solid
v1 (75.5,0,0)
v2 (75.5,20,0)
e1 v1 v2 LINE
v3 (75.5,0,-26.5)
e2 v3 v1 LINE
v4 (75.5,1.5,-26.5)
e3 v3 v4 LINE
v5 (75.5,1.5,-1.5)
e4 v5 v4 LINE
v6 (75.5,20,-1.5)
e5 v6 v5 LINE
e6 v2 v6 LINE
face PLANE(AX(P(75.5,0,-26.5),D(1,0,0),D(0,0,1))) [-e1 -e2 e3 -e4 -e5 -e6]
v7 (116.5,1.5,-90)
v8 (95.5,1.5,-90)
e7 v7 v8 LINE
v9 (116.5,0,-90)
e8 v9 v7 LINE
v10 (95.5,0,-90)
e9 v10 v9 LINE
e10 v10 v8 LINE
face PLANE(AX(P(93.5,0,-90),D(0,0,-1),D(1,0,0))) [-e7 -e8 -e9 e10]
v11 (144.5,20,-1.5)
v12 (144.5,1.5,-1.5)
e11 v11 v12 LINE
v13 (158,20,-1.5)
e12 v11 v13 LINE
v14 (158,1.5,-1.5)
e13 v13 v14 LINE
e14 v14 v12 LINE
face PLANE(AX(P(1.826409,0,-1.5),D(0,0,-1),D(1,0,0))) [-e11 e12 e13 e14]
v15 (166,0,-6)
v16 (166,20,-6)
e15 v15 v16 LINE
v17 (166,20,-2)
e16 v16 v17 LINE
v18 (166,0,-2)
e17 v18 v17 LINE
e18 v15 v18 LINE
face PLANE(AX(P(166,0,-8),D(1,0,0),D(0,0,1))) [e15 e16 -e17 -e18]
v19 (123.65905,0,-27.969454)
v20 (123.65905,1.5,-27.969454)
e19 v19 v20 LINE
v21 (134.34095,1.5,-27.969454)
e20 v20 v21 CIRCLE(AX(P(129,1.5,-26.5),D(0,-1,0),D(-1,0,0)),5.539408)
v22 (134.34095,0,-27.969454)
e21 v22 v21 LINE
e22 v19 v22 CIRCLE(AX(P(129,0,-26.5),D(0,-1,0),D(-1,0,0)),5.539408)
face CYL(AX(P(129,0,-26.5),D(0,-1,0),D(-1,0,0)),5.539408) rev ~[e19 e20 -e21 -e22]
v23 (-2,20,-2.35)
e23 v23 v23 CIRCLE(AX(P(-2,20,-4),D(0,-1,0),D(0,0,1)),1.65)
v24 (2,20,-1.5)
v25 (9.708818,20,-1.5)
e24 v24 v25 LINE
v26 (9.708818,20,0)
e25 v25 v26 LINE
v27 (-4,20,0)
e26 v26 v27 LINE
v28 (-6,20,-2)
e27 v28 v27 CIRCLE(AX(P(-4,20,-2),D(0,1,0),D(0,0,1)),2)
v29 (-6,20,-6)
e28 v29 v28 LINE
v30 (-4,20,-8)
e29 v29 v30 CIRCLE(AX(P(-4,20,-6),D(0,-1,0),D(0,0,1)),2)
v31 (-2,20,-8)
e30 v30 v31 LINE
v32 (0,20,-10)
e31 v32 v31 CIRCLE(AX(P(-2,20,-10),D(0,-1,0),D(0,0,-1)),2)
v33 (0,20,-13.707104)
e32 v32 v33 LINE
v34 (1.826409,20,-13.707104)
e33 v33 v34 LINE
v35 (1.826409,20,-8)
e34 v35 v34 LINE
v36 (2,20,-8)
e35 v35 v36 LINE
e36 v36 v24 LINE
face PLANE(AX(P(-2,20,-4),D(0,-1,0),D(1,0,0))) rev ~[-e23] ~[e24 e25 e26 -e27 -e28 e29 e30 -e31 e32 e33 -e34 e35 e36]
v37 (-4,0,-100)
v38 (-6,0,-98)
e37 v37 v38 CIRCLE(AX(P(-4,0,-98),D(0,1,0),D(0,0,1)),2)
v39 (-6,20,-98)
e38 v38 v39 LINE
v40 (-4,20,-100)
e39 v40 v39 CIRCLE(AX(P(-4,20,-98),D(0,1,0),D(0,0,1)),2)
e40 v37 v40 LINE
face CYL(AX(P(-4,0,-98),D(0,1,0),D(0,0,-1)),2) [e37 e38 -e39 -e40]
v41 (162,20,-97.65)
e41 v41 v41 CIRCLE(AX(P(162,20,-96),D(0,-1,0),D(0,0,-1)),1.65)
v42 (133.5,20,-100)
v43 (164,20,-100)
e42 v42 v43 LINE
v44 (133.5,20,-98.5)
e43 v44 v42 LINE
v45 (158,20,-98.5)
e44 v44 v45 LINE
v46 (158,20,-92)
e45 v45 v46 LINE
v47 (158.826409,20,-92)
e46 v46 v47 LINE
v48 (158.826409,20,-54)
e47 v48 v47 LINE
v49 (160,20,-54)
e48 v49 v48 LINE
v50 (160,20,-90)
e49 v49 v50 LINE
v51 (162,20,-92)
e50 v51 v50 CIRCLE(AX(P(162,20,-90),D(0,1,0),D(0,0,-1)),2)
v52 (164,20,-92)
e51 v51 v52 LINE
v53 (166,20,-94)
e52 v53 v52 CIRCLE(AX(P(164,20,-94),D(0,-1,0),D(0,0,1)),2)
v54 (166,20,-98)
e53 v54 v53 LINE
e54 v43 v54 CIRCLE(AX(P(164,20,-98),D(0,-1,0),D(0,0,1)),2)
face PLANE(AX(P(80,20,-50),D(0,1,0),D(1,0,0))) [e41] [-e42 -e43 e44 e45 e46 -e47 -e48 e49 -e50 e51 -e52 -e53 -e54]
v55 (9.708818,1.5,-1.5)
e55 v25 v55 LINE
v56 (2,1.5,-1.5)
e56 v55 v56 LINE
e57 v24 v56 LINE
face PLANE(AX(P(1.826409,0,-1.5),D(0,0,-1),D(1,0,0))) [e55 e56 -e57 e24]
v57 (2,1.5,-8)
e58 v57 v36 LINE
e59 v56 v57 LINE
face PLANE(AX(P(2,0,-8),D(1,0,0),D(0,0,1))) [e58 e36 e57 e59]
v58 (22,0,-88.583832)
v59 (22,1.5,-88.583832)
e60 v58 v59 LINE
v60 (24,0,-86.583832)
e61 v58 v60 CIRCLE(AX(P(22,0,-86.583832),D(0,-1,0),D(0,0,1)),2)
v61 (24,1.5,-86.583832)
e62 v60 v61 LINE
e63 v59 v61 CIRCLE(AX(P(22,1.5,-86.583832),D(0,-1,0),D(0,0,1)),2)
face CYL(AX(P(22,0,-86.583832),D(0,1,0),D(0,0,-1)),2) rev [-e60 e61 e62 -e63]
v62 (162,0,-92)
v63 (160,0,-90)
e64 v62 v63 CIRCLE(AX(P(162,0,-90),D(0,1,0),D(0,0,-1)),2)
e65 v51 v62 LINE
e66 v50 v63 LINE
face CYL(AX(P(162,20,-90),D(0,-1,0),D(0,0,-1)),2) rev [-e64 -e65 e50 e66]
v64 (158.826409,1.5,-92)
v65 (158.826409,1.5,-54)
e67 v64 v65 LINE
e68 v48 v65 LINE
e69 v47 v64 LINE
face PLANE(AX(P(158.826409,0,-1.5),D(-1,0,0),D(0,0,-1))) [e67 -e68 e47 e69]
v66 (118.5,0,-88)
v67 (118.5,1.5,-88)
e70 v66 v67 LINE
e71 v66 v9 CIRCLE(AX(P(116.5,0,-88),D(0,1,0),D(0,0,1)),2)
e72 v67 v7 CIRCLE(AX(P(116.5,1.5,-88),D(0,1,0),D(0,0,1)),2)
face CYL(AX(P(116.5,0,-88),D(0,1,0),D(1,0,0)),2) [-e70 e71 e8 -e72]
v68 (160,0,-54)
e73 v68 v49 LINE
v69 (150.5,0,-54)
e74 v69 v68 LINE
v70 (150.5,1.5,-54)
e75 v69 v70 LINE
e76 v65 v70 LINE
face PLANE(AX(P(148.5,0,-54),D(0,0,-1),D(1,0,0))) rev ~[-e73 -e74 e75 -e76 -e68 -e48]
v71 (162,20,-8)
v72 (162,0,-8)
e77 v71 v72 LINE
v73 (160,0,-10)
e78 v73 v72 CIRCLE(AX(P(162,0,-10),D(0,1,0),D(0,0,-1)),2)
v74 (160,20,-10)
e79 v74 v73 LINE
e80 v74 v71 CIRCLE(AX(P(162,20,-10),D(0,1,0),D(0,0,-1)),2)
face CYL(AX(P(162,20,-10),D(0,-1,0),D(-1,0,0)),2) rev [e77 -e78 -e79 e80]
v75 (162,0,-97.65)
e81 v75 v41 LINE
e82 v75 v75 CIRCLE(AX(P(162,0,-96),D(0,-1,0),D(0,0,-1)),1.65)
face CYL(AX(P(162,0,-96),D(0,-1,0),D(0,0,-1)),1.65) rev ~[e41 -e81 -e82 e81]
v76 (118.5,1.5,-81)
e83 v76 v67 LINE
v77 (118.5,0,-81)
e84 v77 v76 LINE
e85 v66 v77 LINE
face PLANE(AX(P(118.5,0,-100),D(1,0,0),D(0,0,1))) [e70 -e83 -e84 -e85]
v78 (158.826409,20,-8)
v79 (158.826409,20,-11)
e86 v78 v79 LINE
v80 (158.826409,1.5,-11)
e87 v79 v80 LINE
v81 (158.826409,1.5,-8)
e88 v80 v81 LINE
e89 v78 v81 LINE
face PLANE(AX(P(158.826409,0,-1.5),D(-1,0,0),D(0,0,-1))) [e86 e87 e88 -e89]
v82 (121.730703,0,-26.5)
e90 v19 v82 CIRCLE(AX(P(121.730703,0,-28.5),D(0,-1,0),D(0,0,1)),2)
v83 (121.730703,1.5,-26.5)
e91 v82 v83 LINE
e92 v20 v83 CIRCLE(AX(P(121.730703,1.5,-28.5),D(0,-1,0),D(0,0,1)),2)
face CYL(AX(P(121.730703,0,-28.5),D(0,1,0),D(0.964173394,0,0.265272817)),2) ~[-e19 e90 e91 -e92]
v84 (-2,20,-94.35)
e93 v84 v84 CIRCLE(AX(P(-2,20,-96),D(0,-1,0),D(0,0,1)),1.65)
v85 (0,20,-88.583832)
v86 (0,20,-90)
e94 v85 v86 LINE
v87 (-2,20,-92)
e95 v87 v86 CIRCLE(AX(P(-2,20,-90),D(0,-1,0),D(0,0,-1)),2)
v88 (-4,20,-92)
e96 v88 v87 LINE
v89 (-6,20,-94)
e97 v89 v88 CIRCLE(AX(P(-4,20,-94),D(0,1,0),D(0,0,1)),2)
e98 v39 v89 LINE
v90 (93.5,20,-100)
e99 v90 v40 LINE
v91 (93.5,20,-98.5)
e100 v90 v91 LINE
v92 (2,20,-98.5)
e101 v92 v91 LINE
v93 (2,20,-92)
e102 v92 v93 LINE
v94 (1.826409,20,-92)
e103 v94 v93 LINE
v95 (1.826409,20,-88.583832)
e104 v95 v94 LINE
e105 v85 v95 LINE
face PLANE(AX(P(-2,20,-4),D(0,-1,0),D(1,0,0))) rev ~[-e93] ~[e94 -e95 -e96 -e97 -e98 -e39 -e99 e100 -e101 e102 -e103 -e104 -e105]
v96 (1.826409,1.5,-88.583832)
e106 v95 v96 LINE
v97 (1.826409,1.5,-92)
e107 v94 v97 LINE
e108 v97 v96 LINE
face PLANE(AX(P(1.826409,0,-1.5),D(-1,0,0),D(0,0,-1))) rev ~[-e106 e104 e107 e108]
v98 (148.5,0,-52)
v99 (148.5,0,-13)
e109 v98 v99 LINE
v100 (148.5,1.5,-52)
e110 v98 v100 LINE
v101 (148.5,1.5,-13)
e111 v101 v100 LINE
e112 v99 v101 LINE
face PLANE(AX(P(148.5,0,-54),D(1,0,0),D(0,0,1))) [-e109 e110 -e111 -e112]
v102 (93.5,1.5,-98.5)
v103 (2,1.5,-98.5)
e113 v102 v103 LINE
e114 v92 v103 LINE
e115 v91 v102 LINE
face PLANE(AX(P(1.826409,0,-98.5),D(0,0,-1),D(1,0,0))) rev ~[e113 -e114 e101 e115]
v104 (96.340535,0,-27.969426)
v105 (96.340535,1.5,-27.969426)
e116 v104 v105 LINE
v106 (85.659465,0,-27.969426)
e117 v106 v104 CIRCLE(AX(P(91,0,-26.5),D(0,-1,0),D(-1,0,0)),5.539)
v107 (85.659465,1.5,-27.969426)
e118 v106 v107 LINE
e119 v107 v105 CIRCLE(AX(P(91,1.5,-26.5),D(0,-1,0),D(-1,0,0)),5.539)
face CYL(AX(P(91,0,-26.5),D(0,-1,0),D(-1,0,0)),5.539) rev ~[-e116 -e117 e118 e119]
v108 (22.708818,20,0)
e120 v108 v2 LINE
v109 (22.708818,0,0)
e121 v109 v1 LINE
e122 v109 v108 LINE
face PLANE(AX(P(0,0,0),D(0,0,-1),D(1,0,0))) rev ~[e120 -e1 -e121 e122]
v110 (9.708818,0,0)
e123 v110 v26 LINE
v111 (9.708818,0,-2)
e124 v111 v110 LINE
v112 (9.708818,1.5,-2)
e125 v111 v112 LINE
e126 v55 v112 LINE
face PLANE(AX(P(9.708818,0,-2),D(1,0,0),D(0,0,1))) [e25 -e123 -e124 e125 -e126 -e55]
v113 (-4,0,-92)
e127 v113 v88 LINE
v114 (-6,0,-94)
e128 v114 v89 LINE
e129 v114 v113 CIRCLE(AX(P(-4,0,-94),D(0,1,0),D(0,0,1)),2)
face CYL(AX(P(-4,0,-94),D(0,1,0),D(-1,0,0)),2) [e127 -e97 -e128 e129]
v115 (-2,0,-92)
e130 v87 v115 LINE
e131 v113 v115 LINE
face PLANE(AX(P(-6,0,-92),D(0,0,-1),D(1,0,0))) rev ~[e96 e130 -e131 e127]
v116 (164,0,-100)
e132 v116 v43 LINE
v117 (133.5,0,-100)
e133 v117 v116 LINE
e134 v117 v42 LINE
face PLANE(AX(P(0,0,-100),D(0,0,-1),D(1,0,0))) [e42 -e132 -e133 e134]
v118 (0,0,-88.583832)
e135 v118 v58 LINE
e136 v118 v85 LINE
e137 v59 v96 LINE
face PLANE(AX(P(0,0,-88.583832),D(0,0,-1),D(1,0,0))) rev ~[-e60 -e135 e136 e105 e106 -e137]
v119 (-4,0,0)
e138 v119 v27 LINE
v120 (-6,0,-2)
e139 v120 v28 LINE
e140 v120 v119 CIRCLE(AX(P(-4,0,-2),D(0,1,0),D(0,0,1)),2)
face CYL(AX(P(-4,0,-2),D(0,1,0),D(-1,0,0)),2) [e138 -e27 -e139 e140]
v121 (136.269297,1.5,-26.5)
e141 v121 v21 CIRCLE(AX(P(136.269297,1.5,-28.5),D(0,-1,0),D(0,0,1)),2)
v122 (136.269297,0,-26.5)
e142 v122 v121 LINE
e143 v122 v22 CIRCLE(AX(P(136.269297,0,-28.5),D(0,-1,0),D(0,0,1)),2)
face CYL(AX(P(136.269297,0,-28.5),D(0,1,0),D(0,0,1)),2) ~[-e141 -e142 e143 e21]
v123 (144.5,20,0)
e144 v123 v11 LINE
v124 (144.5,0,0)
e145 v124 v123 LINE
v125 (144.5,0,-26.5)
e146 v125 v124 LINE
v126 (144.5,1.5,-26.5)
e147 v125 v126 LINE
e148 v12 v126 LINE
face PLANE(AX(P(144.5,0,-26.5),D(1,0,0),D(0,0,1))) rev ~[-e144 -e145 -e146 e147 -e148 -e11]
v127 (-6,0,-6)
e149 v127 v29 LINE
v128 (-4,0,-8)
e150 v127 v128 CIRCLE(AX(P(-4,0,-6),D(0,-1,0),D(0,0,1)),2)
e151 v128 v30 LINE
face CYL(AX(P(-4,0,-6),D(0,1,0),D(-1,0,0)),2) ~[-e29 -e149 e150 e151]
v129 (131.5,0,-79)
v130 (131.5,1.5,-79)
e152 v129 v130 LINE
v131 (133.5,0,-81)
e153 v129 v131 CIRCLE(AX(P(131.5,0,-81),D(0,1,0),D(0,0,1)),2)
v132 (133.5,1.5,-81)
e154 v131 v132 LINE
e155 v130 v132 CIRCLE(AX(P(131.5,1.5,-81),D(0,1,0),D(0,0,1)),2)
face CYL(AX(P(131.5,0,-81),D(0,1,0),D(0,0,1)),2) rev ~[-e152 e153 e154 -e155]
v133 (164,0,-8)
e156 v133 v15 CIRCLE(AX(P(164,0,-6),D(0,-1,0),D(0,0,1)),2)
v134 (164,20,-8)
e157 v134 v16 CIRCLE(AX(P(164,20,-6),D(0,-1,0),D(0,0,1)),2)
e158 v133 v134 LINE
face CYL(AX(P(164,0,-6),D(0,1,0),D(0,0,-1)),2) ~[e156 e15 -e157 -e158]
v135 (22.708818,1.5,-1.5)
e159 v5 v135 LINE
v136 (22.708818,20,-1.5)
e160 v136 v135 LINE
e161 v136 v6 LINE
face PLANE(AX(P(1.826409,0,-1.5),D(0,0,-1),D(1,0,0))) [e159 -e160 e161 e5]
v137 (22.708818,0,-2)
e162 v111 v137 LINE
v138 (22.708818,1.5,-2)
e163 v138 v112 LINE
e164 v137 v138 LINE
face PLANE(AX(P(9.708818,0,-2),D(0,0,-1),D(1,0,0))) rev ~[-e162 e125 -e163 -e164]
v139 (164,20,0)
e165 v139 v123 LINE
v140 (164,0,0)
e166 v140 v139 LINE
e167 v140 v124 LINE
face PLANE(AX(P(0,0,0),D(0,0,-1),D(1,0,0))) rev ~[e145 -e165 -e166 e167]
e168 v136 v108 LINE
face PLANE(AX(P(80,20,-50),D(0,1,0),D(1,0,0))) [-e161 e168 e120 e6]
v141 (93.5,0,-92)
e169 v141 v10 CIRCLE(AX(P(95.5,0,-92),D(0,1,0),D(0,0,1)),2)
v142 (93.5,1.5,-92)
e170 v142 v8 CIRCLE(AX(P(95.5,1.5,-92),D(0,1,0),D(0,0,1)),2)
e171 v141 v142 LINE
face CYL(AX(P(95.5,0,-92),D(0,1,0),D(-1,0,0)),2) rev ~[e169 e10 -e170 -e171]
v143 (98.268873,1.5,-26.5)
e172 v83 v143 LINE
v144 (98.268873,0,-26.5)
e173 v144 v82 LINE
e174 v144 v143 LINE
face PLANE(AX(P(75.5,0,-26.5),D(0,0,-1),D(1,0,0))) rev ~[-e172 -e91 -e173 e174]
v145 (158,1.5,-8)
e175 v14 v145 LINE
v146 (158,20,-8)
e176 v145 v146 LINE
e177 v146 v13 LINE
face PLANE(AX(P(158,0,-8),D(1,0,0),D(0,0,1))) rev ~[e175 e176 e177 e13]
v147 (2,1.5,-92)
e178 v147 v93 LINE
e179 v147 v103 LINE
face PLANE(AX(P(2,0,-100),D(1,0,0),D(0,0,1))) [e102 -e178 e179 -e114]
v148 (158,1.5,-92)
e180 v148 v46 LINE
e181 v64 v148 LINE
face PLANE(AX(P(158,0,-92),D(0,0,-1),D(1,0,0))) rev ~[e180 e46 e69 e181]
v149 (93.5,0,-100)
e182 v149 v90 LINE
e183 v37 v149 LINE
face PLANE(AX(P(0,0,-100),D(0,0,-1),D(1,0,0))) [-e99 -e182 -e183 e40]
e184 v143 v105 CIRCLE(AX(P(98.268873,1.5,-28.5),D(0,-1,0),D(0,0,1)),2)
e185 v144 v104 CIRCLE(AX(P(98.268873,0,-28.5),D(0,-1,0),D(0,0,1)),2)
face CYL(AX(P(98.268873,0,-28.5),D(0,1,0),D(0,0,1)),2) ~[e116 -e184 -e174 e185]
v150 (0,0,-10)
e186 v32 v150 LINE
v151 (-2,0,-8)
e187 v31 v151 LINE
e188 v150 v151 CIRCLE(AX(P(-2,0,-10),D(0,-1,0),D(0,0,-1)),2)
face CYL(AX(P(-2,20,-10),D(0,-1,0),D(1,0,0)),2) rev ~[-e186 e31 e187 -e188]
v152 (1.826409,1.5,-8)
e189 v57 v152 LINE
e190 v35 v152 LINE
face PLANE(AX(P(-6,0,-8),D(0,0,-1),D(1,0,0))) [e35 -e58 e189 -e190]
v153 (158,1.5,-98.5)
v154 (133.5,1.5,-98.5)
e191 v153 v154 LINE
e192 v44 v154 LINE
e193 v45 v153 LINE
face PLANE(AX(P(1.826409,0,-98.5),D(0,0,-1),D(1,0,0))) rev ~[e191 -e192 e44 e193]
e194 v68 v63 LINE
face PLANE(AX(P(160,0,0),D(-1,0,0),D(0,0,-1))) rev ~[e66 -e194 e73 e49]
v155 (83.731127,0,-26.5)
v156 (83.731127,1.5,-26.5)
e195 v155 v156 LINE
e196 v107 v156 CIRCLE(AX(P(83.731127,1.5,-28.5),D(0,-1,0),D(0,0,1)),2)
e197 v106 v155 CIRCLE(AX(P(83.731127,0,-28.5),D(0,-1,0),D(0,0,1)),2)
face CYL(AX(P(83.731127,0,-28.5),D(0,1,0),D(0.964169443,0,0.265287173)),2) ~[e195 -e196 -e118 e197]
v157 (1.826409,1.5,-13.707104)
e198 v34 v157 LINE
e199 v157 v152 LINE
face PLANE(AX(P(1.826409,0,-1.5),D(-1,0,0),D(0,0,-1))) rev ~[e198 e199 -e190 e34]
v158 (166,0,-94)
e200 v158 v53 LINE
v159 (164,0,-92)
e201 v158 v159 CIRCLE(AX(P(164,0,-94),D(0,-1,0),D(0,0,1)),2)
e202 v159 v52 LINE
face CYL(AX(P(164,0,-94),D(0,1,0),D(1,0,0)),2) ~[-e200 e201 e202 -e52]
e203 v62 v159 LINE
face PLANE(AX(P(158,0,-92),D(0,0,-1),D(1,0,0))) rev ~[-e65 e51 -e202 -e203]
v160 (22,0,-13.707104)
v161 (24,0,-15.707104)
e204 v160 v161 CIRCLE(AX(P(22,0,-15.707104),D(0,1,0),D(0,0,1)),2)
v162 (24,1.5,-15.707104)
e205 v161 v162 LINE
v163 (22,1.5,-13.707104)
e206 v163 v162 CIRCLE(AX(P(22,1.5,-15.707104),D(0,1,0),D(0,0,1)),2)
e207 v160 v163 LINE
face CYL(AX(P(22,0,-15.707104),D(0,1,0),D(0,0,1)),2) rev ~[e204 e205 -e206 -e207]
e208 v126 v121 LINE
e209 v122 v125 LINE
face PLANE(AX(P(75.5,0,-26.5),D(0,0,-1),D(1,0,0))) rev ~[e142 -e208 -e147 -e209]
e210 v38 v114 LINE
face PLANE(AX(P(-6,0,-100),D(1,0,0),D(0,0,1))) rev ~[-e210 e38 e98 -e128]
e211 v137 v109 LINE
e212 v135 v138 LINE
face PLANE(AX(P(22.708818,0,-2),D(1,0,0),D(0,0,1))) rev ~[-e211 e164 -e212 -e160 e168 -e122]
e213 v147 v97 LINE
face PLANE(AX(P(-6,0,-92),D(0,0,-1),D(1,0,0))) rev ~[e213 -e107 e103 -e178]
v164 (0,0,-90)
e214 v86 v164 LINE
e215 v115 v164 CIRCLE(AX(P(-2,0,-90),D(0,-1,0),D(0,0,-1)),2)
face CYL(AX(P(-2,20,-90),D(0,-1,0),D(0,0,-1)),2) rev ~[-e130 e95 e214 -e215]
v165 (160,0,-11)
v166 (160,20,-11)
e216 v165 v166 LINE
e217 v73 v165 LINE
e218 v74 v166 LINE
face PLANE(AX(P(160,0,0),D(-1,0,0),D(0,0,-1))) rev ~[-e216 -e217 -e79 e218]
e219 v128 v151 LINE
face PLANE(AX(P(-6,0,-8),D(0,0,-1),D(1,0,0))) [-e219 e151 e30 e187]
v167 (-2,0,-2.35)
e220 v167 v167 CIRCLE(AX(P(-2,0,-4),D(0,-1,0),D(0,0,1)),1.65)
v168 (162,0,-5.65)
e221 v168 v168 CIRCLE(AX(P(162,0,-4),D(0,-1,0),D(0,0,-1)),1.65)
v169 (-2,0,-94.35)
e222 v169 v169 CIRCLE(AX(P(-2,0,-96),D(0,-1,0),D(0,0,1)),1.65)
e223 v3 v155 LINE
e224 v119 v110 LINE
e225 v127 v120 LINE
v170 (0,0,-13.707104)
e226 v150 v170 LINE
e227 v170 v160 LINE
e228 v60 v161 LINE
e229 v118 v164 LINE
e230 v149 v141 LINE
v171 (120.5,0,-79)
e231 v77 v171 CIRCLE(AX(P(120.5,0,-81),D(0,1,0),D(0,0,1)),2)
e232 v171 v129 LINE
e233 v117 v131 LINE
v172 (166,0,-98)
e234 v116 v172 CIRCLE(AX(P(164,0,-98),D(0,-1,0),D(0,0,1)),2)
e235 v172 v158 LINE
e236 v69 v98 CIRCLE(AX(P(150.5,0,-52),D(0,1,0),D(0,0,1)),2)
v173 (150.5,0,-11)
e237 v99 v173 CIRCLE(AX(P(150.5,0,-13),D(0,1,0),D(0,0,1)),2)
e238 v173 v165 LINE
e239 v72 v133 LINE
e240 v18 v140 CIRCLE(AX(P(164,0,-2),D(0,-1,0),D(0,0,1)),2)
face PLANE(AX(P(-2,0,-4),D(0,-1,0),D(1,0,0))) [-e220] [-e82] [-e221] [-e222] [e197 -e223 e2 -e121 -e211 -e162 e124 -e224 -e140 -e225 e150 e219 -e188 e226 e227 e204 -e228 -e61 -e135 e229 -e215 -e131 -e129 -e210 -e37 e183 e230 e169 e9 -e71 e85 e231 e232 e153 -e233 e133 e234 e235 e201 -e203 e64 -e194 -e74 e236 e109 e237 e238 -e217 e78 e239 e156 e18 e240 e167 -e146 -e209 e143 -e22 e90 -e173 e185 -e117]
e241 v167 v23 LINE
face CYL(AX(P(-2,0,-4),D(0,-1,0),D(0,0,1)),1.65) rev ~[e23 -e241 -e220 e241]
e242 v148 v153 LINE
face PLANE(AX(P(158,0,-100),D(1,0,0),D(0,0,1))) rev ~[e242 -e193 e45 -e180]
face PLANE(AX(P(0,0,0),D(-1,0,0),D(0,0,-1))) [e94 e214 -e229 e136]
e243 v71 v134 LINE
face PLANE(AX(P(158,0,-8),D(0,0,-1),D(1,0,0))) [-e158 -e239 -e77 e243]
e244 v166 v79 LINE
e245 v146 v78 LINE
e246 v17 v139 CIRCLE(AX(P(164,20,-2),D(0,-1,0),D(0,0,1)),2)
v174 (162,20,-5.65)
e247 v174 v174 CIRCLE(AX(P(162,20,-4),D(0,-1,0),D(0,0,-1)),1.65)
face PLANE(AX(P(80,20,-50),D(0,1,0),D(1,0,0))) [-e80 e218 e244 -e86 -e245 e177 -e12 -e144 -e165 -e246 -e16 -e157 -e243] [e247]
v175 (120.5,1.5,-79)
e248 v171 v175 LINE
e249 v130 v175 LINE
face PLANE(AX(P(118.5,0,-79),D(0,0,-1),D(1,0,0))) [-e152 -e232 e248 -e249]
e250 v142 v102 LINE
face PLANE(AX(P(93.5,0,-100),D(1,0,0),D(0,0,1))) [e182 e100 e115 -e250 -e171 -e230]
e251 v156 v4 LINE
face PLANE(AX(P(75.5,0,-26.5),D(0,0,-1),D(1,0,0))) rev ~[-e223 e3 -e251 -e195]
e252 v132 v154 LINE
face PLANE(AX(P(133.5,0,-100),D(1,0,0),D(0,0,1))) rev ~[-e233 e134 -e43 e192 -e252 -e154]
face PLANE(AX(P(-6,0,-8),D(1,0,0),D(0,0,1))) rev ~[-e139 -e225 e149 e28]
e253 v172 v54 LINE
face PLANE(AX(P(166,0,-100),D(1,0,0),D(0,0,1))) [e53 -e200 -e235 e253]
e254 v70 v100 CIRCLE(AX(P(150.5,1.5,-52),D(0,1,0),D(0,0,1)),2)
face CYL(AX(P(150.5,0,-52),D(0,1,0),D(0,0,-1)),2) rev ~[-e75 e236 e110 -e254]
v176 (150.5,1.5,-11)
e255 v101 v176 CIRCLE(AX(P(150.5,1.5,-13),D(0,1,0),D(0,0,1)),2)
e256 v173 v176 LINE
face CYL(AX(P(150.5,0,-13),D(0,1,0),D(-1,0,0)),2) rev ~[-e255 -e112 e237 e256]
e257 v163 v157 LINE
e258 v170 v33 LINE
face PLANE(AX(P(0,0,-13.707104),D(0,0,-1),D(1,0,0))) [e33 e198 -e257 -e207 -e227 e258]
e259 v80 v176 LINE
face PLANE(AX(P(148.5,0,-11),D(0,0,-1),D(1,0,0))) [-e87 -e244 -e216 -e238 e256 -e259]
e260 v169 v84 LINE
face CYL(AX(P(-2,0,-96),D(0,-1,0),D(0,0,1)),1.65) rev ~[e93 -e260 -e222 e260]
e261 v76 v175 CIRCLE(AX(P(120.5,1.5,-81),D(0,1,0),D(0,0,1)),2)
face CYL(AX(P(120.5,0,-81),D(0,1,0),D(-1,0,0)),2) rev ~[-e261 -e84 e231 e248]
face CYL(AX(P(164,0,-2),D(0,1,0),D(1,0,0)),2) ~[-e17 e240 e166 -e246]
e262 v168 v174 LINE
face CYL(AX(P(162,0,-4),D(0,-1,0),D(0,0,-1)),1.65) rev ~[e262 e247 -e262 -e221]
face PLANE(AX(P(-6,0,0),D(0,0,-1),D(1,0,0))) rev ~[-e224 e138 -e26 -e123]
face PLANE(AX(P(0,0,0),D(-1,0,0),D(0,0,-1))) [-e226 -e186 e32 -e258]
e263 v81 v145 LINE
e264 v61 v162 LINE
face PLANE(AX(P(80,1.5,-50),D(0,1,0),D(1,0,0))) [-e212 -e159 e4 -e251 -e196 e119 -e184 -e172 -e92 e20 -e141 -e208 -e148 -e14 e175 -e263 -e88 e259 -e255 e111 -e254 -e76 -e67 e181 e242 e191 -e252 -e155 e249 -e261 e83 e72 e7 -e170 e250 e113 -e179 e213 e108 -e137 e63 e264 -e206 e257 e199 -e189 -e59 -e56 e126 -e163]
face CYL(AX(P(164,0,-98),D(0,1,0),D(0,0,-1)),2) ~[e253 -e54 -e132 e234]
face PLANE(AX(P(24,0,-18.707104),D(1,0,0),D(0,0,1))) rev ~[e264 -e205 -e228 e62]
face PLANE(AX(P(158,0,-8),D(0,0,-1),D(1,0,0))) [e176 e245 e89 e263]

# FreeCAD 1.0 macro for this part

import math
import FreeCAD as App
import Part
import Sketcher
from FreeCAD import Vector
Q = App.Units.Quantity


def edges_at(feature, points):
    """Names of the edges that pass closest to the given points."""
    edges = feature.Shape.Edges
    near = lambda p: min(range(len(edges)), key=lambda i: edges[i].distToShape(Part.Vertex(*p))[0])
    return sorted({f"Edge{near(p) + 1}" for p in points})

doc = App.newDocument("Part")
body = doc.addObject("PartDesign::Body", "Body")

sketch1 = doc.addObject("Sketcher::SketchObject", "Sketch")
body.addObject(sketch1)
sketch1.AttachmentSupport = (doc.XZ_Plane, [""])
sketch1.MapMode = "FlatFace"
sketch1.addGeometry([
    Part.LineSegment(Vector(0, -100, 0), Vector(0, 0, 0)),
    Part.LineSegment(Vector(0, 0, 0), Vector(160, 0, 0)),
    Part.LineSegment(Vector(160, 0, 0), Vector(160, -100, 0)),
    Part.LineSegment(Vector(160, -100, 0), Vector(0, -100, 0)),
], False)
sketch1.addConstraint([
    Sketcher.Constraint("Coincident", 0, 2, 1, 1),
    Sketcher.Constraint("Coincident", 1, 2, 2, 1),
    Sketcher.Constraint("Coincident", 2, 2, 3, 1),
    Sketcher.Constraint("Coincident", 3, 2, 0, 1),
    Sketcher.Constraint("Vertical", 0),
    Sketcher.Constraint("Horizontal", 1),
    Sketcher.Constraint("Vertical", 2),
    Sketcher.Constraint("Horizontal", 3),
    Sketcher.Constraint("Coincident", 0, 2, -1, 1),
    Sketcher.Constraint("DistanceX", 1, 1, 1, 2, Q("160 mm")),
    Sketcher.Constraint("DistanceY", 0, 1, 0, 2, Q("100 mm")),
])
pad1 = doc.addObject("PartDesign::Pad", "Pad")
body.addObject(pad1)
pad1.Profile = sketch1
pad1.Length = 1.5
pad1.Reversed = True

sketch2 = doc.addObject("Sketcher::SketchObject", "Sketch001")
body.addObject(sketch2)
sketch2.AttachmentSupport = (doc.XZ_Plane, [""])
sketch2.MapMode = "FlatFace"
sketch2.addGeometry([
    Part.LineSegment(Vector(0, -100, 0), Vector(0, 0, 0)),
    Part.LineSegment(Vector(0, 0, 0), Vector(160, 0, 0)),
    Part.LineSegment(Vector(160, 0, 0), Vector(160, -100, 0)),
    Part.LineSegment(Vector(160, -100, 0), Vector(0, -100, 0)),
    Part.LineSegment(Vector(158.826409, -1.5, 0), Vector(1.826409, -1.5, 0)),
    Part.LineSegment(Vector(1.826409, -1.5, 0), Vector(1.826409, -98.5, 0)),
    Part.LineSegment(Vector(1.826409, -98.5, 0), Vector(158.826409, -98.5, 0)),
    Part.LineSegment(Vector(158.826409, -98.5, 0), Vector(158.826409, -1.5, 0)),
], False)
sketch2.addConstraint([
    Sketcher.Constraint("Coincident", 0, 2, 1, 1),
    Sketcher.Constraint("Coincident", 1, 2, 2, 1),
    Sketcher.Constraint("Coincident", 2, 2, 3, 1),
    Sketcher.Constraint("Coincident", 3, 2, 0, 1),
    Sketcher.Constraint("Coincident", 4, 2, 5, 1),
    Sketcher.Constraint("Coincident", 5, 2, 6, 1),
    Sketcher.Constraint("Coincident", 6, 2, 7, 1),
    Sketcher.Constraint("Coincident", 7, 2, 4, 1),
    Sketcher.Constraint("Vertical", 0),
    Sketcher.Constraint("Horizontal", 1),
    Sketcher.Constraint("Vertical", 2),
    Sketcher.Constraint("Horizontal", 3),
    Sketcher.Constraint("Horizontal", 4),
    Sketcher.Constraint("Vertical", 5),
    Sketcher.Constraint("Horizontal", 6),
    Sketcher.Constraint("Vertical", 7),
    Sketcher.Constraint("Coincident", 0, 2, -1, 1),
    Sketcher.Constraint("DistanceX", 1, 1, 1, 2, Q("160 mm")),
    Sketcher.Constraint("DistanceX", 4, 2, 4, 1, Q("157 mm")),
    Sketcher.Constraint("DistanceY", 0, 1, 0, 2, Q("100 mm")),
    Sketcher.Constraint("DistanceY", 5, 2, 5, 1, Q("97 mm")),
    Sketcher.Constraint("DistanceY", 4, 2, -1, 1, Q("1.5 mm")),
    Sketcher.Constraint("DistanceX", -1, 1, 4, 2, Q("1.826409 mm")),
])
pad2 = doc.addObject("PartDesign::Pad", "Pad001")
body.addObject(pad2)
pad2.Profile = sketch2
pad2.Length = 20
pad2.Reversed = True
doc.recompute()

fillet = doc.addObject("PartDesign::Fillet", "Fillet")
body.addObject(fillet)
fillet.Base = (pad2, edges_at(pad2, [
    (0, 10, -100),
    (160, 10, -100),
    (160, 10, 0),
    (0, 10, 0),
]))
fillet.Radius = 2

sketch3 = doc.addObject("Sketcher::SketchObject", "Sketch002")
body.addObject(sketch3)
sketch3.AttachmentSupport = (doc.XZ_Plane, [""])
sketch3.MapMode = "FlatFace"
sketch3.addGeometry([
    Part.LineSegment(Vector(118.5, -79, 0), Vector(118.5, -100, 0)),
    Part.LineSegment(Vector(118.5, -100, 0), Vector(133.5, -100, 0)),
    Part.LineSegment(Vector(133.5, -100, 0), Vector(133.5, -79, 0)),
    Part.LineSegment(Vector(133.5, -79, 0), Vector(118.5, -79, 0)),
], False)
sketch3.addConstraint([
    Sketcher.Constraint("Coincident", 0, 2, 1, 1),
    Sketcher.Constraint("Coincident", 1, 2, 2, 1),
    Sketcher.Constraint("Coincident", 2, 2, 3, 1),
    Sketcher.Constraint("Coincident", 3, 2, 0, 1),
    Sketcher.Constraint("Vertical", 0),
    Sketcher.Constraint("Horizontal", 1),
    Sketcher.Constraint("Vertical", 2),
    Sketcher.Constraint("Horizontal", 3),
    Sketcher.Constraint("DistanceX", 1, 1, 1, 2, Q("15 mm")),
    Sketcher.Constraint("DistanceY", 0, 2, 0, 1, Q("21 mm")),
    Sketcher.Constraint("DistanceY", 0, 2, -1, 1, Q("100 mm")),
    Sketcher.Constraint("DistanceX", -1, 1, 0, 2, Q("118.5 mm")),
])
pocket1 = doc.addObject("PartDesign::Pocket", "Pocket")
body.addObject(pocket1)
pocket1.Profile = sketch3
pocket1.Type = "ThroughAll"

sketch4 = doc.addObject("Sketcher::SketchObject", "Sketch003")
body.addObject(sketch4)
sketch4.AttachmentSupport = (doc.XZ_Plane, [""])
sketch4.MapMode = "FlatFace"
sketch4.addGeometry([
    Part.LineSegment(Vector(75.5, 0, 0), Vector(75.5, -26.5, 0)),
    Part.LineSegment(Vector(75.5, -26.5, 0), Vector(144.5, -26.5, 0)),
    Part.LineSegment(Vector(144.5, -26.5, 0), Vector(144.5, 0, 0)),
    Part.LineSegment(Vector(144.5, 0, 0), Vector(75.5, 0, 0)),
], False)
sketch4.addConstraint([
    Sketcher.Constraint("Coincident", 0, 2, 1, 1),
    Sketcher.Constraint("Coincident", 1, 2, 2, 1),
    Sketcher.Constraint("Coincident", 2, 2, 3, 1),
    Sketcher.Constraint("Coincident", 3, 2, 0, 1),
    Sketcher.Constraint("Vertical", 0),
    Sketcher.Constraint("Horizontal", 1),
    Sketcher.Constraint("Vertical", 2),
    Sketcher.Constraint("Horizontal", 3),
    Sketcher.Constraint("PointOnObject", 2, 2, -1),
    Sketcher.Constraint("DistanceX", 1, 1, 1, 2, Q("69 mm")),
    Sketcher.Constraint("DistanceY", 0, 2, 0, 1, Q("26.5 mm")),
    Sketcher.Constraint("DistanceX", -1, 1, 0, 2, Q("75.5 mm")),
])
pocket2 = doc.addObject("PartDesign::Pocket", "Pocket001")
body.addObject(pocket2)
pocket2.Profile = sketch4
pocket2.Type = "ThroughAll"

sketch5 = doc.addObject("Sketcher::SketchObject", "Sketch004")
body.addObject(sketch5)
sketch5.AttachmentSupport = (doc.XZ_Plane, [""])
sketch5.MapMode = "FlatFace"
sketch5.addGeometry([
    Part.LineSegment(Vector(148.5, -11, 0), Vector(148.5, -54, 0)),
    Part.LineSegment(Vector(148.5, -54, 0), Vector(160, -54, 0)),
    Part.LineSegment(Vector(160, -54, 0), Vector(160, -11, 0)),
    Part.LineSegment(Vector(160, -11, 0), Vector(148.5, -11, 0)),
], False)
sketch5.addConstraint([
    Sketcher.Constraint("Coincident", 0, 2, 1, 1),
    Sketcher.Constraint("Coincident", 1, 2, 2, 1),
    Sketcher.Constraint("Coincident", 2, 2, 3, 1),
    Sketcher.Constraint("Coincident", 3, 2, 0, 1),
    Sketcher.Constraint("Vertical", 0),
    Sketcher.Constraint("Horizontal", 1),
    Sketcher.Constraint("Vertical", 2),
    Sketcher.Constraint("Horizontal", 3),
    Sketcher.Constraint("DistanceY", 0, 2, 0, 1, Q("43 mm")),
    Sketcher.Constraint("DistanceX", 1, 1, 1, 2, Q("11.5 mm")),
    Sketcher.Constraint("DistanceY", 0, 2, -1, 1, Q("54 mm")),
    Sketcher.Constraint("DistanceX", -1, 1, 1, 2, Q("160 mm")),
])
pocket3 = doc.addObject("PartDesign::Pocket", "Pocket002")
body.addObject(pocket3)
pocket3.Profile = sketch5
pocket3.Type = "ThroughAll"

sketch6 = doc.addObject("Sketcher::SketchObject", "Sketch005")
body.addObject(sketch6)
sketch6.AttachmentSupport = (doc.XZ_Plane, [""])
sketch6.MapMode = "FlatFace"
sketch6.addGeometry([
    Part.LineSegment(Vector(134.539408, -26.5, 0), Vector(123.460592, -26.5, 0)),
    Part.ArcOfCircle(Part.Circle(Vector(129, -26.5, 0), Vector(0, 0, 1), 5.539408), math.radians(180), math.radians(360)),
    Part.LineSegment(Vector(96.539, -26.5, 0), Vector(85.461, -26.5, 0)),
    Part.ArcOfCircle(Part.Circle(Vector(91, -26.5, 0), Vector(0, 0, 1), 5.539), math.radians(180), math.radians(360)),
], False)
sketch6.addConstraint([
    Sketcher.Constraint("Coincident", 0, 1, 1, 2),
    Sketcher.Constraint("Coincident", 1, 1, 0, 2),
    Sketcher.Constraint("Coincident", 2, 1, 3, 2),
    Sketcher.Constraint("Coincident", 3, 1, 2, 2),
    Sketcher.Constraint("Horizontal", 0),
    Sketcher.Constraint("Horizontal", 2),
    Sketcher.Constraint("Horizontal", 1, 3, 3, 3),
    Sketcher.Constraint("Horizontal", 3, 3, 0, 1),
    Sketcher.Constraint("Horizontal", 1, 1, 2, 1),
    Sketcher.Constraint("DistanceX", -1, 1, 1, 3, Q("129 mm")),
    Sketcher.Constraint("DistanceX", -1, 1, 3, 3, Q("91 mm")),
    Sketcher.Constraint("Radius", 3, Q("5.539 mm")),
    Sketcher.Constraint("DistanceY", 1, 3, -1, 1, Q("26.5 mm")),
    Sketcher.Constraint("Radius", 1, Q("5.539408 mm")),
])
pocket4 = doc.addObject("PartDesign::Pocket", "Pocket003")
body.addObject(pocket4)
pocket4.Profile = sketch6
pocket4.Length = 10
doc.recompute()

fillet2 = doc.addObject("PartDesign::Fillet", "Fillet001")
body.addObject(fillet2)
fillet2.Base = (pocket4, edges_at(pocket4, [
    (85.461, 0.75, -26.5),
    (96.539, 0.75, -26.5),
    (123.461, 0.75, -26.5),
    (134.539, 0.75, -26.5),
]))
fillet2.Radius = 2

sketch7 = doc.addObject("Sketcher::SketchObject", "Sketch006")
body.addObject(sketch7)
sketch7.AttachmentSupport = (doc.XZ_Plane, [""])
sketch7.MapMode = "FlatFace"
sketch7.addGeometry([
    Part.LineSegment(Vector(9.708818, 0, 0), Vector(9.708818, -2, 0)),
    Part.LineSegment(Vector(9.708818, -2, 0), Vector(22.708818, -2, 0)),
    Part.LineSegment(Vector(22.708818, -2, 0), Vector(22.708818, 0, 0)),
    Part.LineSegment(Vector(22.708818, 0, 0), Vector(9.708818, 0, 0)),
], False)
sketch7.addConstraint([
    Sketcher.Constraint("Coincident", 0, 2, 1, 1),
    Sketcher.Constraint("Coincident", 1, 2, 2, 1),
    Sketcher.Constraint("Coincident", 2, 2, 3, 1),
    Sketcher.Constraint("Coincident", 3, 2, 0, 1),
    Sketcher.Constraint("Vertical", 0),
    Sketcher.Constraint("Horizontal", 1),
    Sketcher.Constraint("Vertical", 2),
    Sketcher.Constraint("Horizontal", 3),
    Sketcher.Constraint("PointOnObject", 2, 2, -1),
    Sketcher.Constraint("DistanceX", 1, 1, 1, 2, Q("13 mm")),
    Sketcher.Constraint("DistanceY", 0, 2, 0, 1, Q("2 mm")),
    Sketcher.Constraint("DistanceX", -1, 1, 0, 2, Q("9.708818 mm")),
])
pocket5 = doc.addObject("PartDesign::Pocket", "Pocket004")
body.addObject(pocket5)
pocket5.Profile = sketch7
pocket5.Length = 20
doc.recompute()

fillet3 = doc.addObject("PartDesign::Fillet", "Fillet002")
body.addObject(fillet3)
fillet3.Base = (pocket5, edges_at(pocket5, [
    (148.5, 0.75, -54),
    (148.5, 0.75, -11),
    (118.5, 0.75, -79),
    (133.5, 0.75, -79),
]))
fillet3.Radius = 2

sketch8 = doc.addObject("Sketcher::SketchObject", "Sketch007")
body.addObject(sketch8)
sketch8.AttachmentSupport = (doc.XZ_Plane, [""])
sketch8.MapMode = "FlatFace"
sketch8.addGeometry([
    Part.LineSegment(Vector(93.5, -90, 0), Vector(93.5, -100, 0)),
    Part.LineSegment(Vector(93.5, -100, 0), Vector(118.5, -100, 0)),
    Part.LineSegment(Vector(118.5, -100, 0), Vector(118.5, -90, 0)),
    Part.LineSegment(Vector(118.5, -90, 0), Vector(93.5, -90, 0)),
], False)
sketch8.addConstraint([
    Sketcher.Constraint("Coincident", 0, 2, 1, 1),
    Sketcher.Constraint("Coincident", 1, 2, 2, 1),
    Sketcher.Constraint("Coincident", 2, 2, 3, 1),
    Sketcher.Constraint("Coincident", 3, 2, 0, 1),
    Sketcher.Constraint("Vertical", 0),
    Sketcher.Constraint("Horizontal", 1),
    Sketcher.Constraint("Vertical", 2),
    Sketcher.Constraint("Horizontal", 3),
    Sketcher.Constraint("DistanceX", 1, 1, 1, 2, Q("25 mm")),
    Sketcher.Constraint("DistanceY", 0, 2, 0, 1, Q("10 mm")),
    Sketcher.Constraint("DistanceY", 0, 2, -1, 1, Q("100 mm")),
    Sketcher.Constraint("DistanceX", -1, 1, 0, 2, Q("93.5 mm")),
])
pocket6 = doc.addObject("PartDesign::Pocket", "Pocket005")
body.addObject(pocket6)
pocket6.Profile = sketch8
pocket6.Length = 20
doc.recompute()

fillet4 = doc.addObject("PartDesign::Fillet", "Fillet003")
body.addObject(fillet4)
fillet4.Base = (pocket6, edges_at(pocket6, [(118.5, 0.75, -90), (93.5, 0.75, -90)]))
fillet4.Radius = 2

sketch9 = doc.addObject("Sketcher::SketchObject", "Sketch008")
body.addObject(sketch9)
sketch9.AttachmentSupport = (doc.XZ_Plane, [""])
sketch9.MapMode = "FlatFace"
sketch9.addGeometry([
    Part.LineSegment(Vector(-6, 0, 0), Vector(-6, -8, 0)),
    Part.LineSegment(Vector(-6, -8, 0), Vector(2, -8, 0)),
    Part.LineSegment(Vector(2, -8, 0), Vector(2, 0, 0)),
    Part.LineSegment(Vector(2, 0, 0), Vector(-6, 0, 0)),
    Part.Circle(Vector(-2, -4, 0), Vector(0, 0, 1), 1.65),
    Part.LineSegment(Vector(158, -92, 0), Vector(158, -100, 0)),
    Part.LineSegment(Vector(158, -100, 0), Vector(166, -100, 0)),
    Part.LineSegment(Vector(166, -100, 0), Vector(166, -92, 0)),
    Part.LineSegment(Vector(166, -92, 0), Vector(158, -92, 0)),
    Part.Circle(Vector(162, -96, 0), Vector(0, 0, 1), 1.65),
    Part.LineSegment(Vector(158, 0, 0), Vector(158, -8, 0)),
    Part.LineSegment(Vector(158, -8, 0), Vector(166, -8, 0)),
    Part.LineSegment(Vector(166, -8, 0), Vector(166, 0, 0)),
    Part.LineSegment(Vector(166, 0, 0), Vector(158, 0, 0)),
    Part.Circle(Vector(162, -4, 0), Vector(0, 0, 1), 1.65),
    Part.LineSegment(Vector(-6, -92, 0), Vector(-6, -100, 0)),
    Part.LineSegment(Vector(-6, -100, 0), Vector(2, -100, 0)),
    Part.LineSegment(Vector(2, -100, 0), Vector(2, -92, 0)),
    Part.LineSegment(Vector(2, -92, 0), Vector(-6, -92, 0)),
    Part.Circle(Vector(-2, -96, 0), Vector(0, 0, 1), 1.65),
], False)
sketch9.addConstraint([
    Sketcher.Constraint("Coincident", 0, 2, 1, 1),
    Sketcher.Constraint("Coincident", 1, 2, 2, 1),
    Sketcher.Constraint("Coincident", 2, 2, 3, 1),
    Sketcher.Constraint("Coincident", 3, 2, 0, 1),
    Sketcher.Constraint("Coincident", 5, 2, 6, 1),
    Sketcher.Constraint("Coincident", 6, 2, 7, 1),
    Sketcher.Constraint("Coincident", 7, 2, 8, 1),
    Sketcher.Constraint("Coincident", 8, 2, 5, 1),
    Sketcher.Constraint("Coincident", 10, 2, 11, 1),
    Sketcher.Constraint("Coincident", 11, 2, 12, 1),
    Sketcher.Constraint("Coincident", 12, 2, 13, 1),
    Sketcher.Constraint("Coincident", 13, 2, 10, 1),
    Sketcher.Constraint("Coincident", 15, 2, 16, 1),
    Sketcher.Constraint("Coincident", 16, 2, 17, 1),
    Sketcher.Constraint("Coincident", 17, 2, 18, 1),
    Sketcher.Constraint("Coincident", 18, 2, 15, 1),
    Sketcher.Constraint("Vertical", 0),
    Sketcher.Constraint("Horizontal", 1),
    Sketcher.Constraint("Vertical", 2),
    Sketcher.Constraint("Horizontal", 3),
    Sketcher.Constraint("Vertical", 5),
    Sketcher.Constraint("Horizontal", 6),
    Sketcher.Constraint("Vertical", 7),
    Sketcher.Constraint("Horizontal", 8),
    Sketcher.Constraint("Vertical", 10),
    Sketcher.Constraint("Horizontal", 11),
    Sketcher.Constraint("Vertical", 12),
    Sketcher.Constraint("Horizontal", 13),
    Sketcher.Constraint("Vertical", 15),
    Sketcher.Constraint("Horizontal", 16),
    Sketcher.Constraint("Vertical", 17),
    Sketcher.Constraint("Horizontal", 18),
    Sketcher.Constraint("Equal", 4, 9),
    Sketcher.Constraint("Equal", 9, 14),
    Sketcher.Constraint("Equal", 14, 19),
    Sketcher.Constraint("PointOnObject", 2, 2, -1),
    Sketcher.Constraint("PointOnObject", 12, 2, -1),
    Sketcher.Constraint("Horizontal", 4, 3, 14, 3),
    Sketcher.Constraint("Horizontal", 9, 3, 19, 3),
    Sketcher.Constraint("Horizontal", 1, 2, 10, 2),
    Sketcher.Constraint("Horizontal", 6, 2, 15, 2),
    Sketcher.Constraint("Horizontal", 8, 2, 17, 2),
    Sketcher.Constraint("Vertical", 9, 3, 14, 3),
    Sketcher.Constraint("Vertical", 4, 3, 19, 3),
    Sketcher.Constraint("Vertical", 8, 2, 10, 2),
    Sketcher.Constraint("Vertical", 7, 2, 11, 2),
    Sketcher.Constraint("Vertical", 3, 2, 15, 2),
    Sketcher.Constraint("Vertical", 2, 2, 16, 2),
    Sketcher.Constraint("Equal", 3, 6),
    Sketcher.Constraint("Equal", 18, 0),
    Sketcher.Constraint("Equal", 2, 5),
    Sketcher.Constraint("Diameter", 4, Q("3.3 mm")),
    Sketcher.Constraint("DistanceX", 1, 1, 1, 2, Q("8 mm")),
    Sketcher.Constraint("DistanceX", 4, 3, -1, 1, Q("2 mm")),
    Sketcher.Constraint("DistanceY", 4, 3, -1, 1, Q("4 mm")),
    Sketcher.Constraint("DistanceX", -1, 1, 9, 3, Q("162 mm")),
    Sketcher.Constraint("DistanceY", 9, 3, -1, 1, Q("96 mm")),
    Sketcher.Constraint("DistanceX", 0, 2, -1, 1, Q("6 mm")),
    Sketcher.Constraint("DistanceX", -1, 1, 5, 2, Q("158 mm")),
    Sketcher.Constraint("DistanceY", 5, 2, -1, 1, Q("100 mm")),
])
pad3 = doc.addObject("PartDesign::Pad", "Pad002")
body.addObject(pad3)
pad3.Profile = sketch9
pad3.Length = 20
pad3.Reversed = True
doc.recompute()

fillet5 = doc.addObject("PartDesign::Fillet", "Fillet004")
body.addObject(fillet5)
fillet5.Base = (pad3, edges_at(pad3, [
    (160, 10, -92),
    (166, 10, -92),
    (166, 10, -100),
    (166, 10, -8),
    (160, 10, -8),
    (166, 10, 0),
    (0, 10, -8),
    (-6, 10, -8),
    (-6, 10, 0),
    (-6, 10, -92),
    (0, 10, -92),
    (-6, 10, -100),
]))
fillet5.Radius = 2

sketch10 = doc.addObject("Sketcher::SketchObject", "Sketch009")
body.addObject(sketch10)
sketch10.AttachmentSupport = (doc.XZ_Plane, [""])
sketch10.MapMode = "FlatFace"
sketch10.addGeometry([
    Part.LineSegment(Vector(0, -18.707104, 0), Vector(0, -83.583832, 0)),
    Part.LineSegment(Vector(0, -83.583832, 0), Vector(24, -83.583832, 0)),
    Part.LineSegment(Vector(24, -83.583832, 0), Vector(24, -18.707104, 0)),
    Part.LineSegment(Vector(24, -18.707104, 0), Vector(0, -18.707104, 0)),
], False)
sketch10.addConstraint([
    Sketcher.Constraint("Coincident", 0, 2, 1, 1),
    Sketcher.Constraint("Coincident", 1, 2, 2, 1),
    Sketcher.Constraint("Coincident", 2, 2, 3, 1),
    Sketcher.Constraint("Coincident", 3, 2, 0, 1),
    Sketcher.Constraint("Vertical", 0),
    Sketcher.Constraint("Horizontal", 1),
    Sketcher.Constraint("Vertical", 2),
    Sketcher.Constraint("Horizontal", 3),
    Sketcher.Constraint("PointOnObject", 0, 2, -2),
    Sketcher.Constraint("DistanceX", 1, 1, 1, 2, Q("24 mm")),
    Sketcher.Constraint("DistanceY", 0, 2, 0, 1, Q("64.876728 mm")),
    Sketcher.Constraint("DistanceY", 0, 2, -1, 1, Q("83.583832 mm")),
])
pocket7 = doc.addObject("PartDesign::Pocket", "Pocket006")
body.addObject(pocket7)
pocket7.Profile = sketch10
pocket7.Length = 22

sketch11 = doc.addObject("Sketcher::SketchObject", "Sketch010")
body.addObject(sketch11)
sketch11.AttachmentSupport = (doc.XZ_Plane, [""])
sketch11.MapMode = "FlatFace"
sketch11.addGeometry([
    Part.LineSegment(Vector(0, -83.583832, 0), Vector(0, -88.583832, 0)),
    Part.LineSegment(Vector(0, -88.583832, 0), Vector(24, -88.583832, 0)),
    Part.LineSegment(Vector(24, -88.583832, 0), Vector(24, -83.583832, 0)),
    Part.LineSegment(Vector(24, -83.583832, 0), Vector(0, -83.583832, 0)),
], False)
sketch11.addConstraint([
    Sketcher.Constraint("Coincident", 0, 2, 1, 1),
    Sketcher.Constraint("Coincident", 1, 2, 2, 1),
    Sketcher.Constraint("Coincident", 2, 2, 3, 1),
    Sketcher.Constraint("Coincident", 3, 2, 0, 1),
    Sketcher.Constraint("Vertical", 0),
    Sketcher.Constraint("Horizontal", 1),
    Sketcher.Constraint("Vertical", 2),
    Sketcher.Constraint("Horizontal", 3),
    Sketcher.Constraint("PointOnObject", 0, 2, -2),
    Sketcher.Constraint("DistanceX", 1, 1, 1, 2, Q("24 mm")),
    Sketcher.Constraint("DistanceY", 0, 2, 0, 1, Q("5 mm")),
    Sketcher.Constraint("DistanceY", 0, 2, -1, 1, Q("88.583832 mm")),
])
pocket8 = doc.addObject("PartDesign::Pocket", "Pocket007")
body.addObject(pocket8)
pocket8.Profile = sketch11
pocket8.Length = 20
doc.recompute()

fillet6 = doc.addObject("PartDesign::Fillet", "Fillet005")
body.addObject(fillet6)
fillet6.Base = (pocket8, edges_at(pocket8, [(24, 0.75, -88.584)]))
fillet6.Radius = 2

sketch12 = doc.addObject("Sketcher::SketchObject", "Sketch011")
body.addObject(sketch12)
sketch12.AttachmentSupport = (doc.XZ_Plane, [""])
sketch12.MapMode = "FlatFace"
sketch12.addGeometry([
    Part.LineSegment(Vector(0, -13.707104, 0), Vector(0, -18.707104, 0)),
    Part.LineSegment(Vector(0, -18.707104, 0), Vector(24, -18.707104, 0)),
    Part.LineSegment(Vector(24, -18.707104, 0), Vector(24, -13.707104, 0)),
    Part.LineSegment(Vector(24, -13.707104, 0), Vector(0, -13.707104, 0)),
], False)
sketch12.addConstraint([
    Sketcher.Constraint("Coincident", 0, 2, 1, 1),
    Sketcher.Constraint("Coincident", 1, 2, 2, 1),
    Sketcher.Constraint("Coincident", 2, 2, 3, 1),
    Sketcher.Constraint("Coincident", 3, 2, 0, 1),
    Sketcher.Constraint("Vertical", 0),
    Sketcher.Constraint("Horizontal", 1),
    Sketcher.Constraint("Vertical", 2),
    Sketcher.Constraint("Horizontal", 3),
    Sketcher.Constraint("PointOnObject", 0, 2, -2),
    Sketcher.Constraint("DistanceX", 1, 1, 1, 2, Q("24 mm")),
    Sketcher.Constraint("DistanceY", 0, 2, 0, 1, Q("5 mm")),
    Sketcher.Constraint("DistanceY", 0, 2, -1, 1, Q("18.707104 mm")),
])
pocket9 = doc.addObject("PartDesign::Pocket", "Pocket008")
body.addObject(pocket9)
pocket9.Profile = sketch12
pocket9.Length = 20
doc.recompute()

fillet7 = doc.addObject("PartDesign::Fillet", "Fillet006")
body.addObject(fillet7)
fillet7.Base = (pocket9, edges_at(pocket9, [(24, 0.75, -13.707)]))
fillet7.Radius = 2

doc.recompute()
